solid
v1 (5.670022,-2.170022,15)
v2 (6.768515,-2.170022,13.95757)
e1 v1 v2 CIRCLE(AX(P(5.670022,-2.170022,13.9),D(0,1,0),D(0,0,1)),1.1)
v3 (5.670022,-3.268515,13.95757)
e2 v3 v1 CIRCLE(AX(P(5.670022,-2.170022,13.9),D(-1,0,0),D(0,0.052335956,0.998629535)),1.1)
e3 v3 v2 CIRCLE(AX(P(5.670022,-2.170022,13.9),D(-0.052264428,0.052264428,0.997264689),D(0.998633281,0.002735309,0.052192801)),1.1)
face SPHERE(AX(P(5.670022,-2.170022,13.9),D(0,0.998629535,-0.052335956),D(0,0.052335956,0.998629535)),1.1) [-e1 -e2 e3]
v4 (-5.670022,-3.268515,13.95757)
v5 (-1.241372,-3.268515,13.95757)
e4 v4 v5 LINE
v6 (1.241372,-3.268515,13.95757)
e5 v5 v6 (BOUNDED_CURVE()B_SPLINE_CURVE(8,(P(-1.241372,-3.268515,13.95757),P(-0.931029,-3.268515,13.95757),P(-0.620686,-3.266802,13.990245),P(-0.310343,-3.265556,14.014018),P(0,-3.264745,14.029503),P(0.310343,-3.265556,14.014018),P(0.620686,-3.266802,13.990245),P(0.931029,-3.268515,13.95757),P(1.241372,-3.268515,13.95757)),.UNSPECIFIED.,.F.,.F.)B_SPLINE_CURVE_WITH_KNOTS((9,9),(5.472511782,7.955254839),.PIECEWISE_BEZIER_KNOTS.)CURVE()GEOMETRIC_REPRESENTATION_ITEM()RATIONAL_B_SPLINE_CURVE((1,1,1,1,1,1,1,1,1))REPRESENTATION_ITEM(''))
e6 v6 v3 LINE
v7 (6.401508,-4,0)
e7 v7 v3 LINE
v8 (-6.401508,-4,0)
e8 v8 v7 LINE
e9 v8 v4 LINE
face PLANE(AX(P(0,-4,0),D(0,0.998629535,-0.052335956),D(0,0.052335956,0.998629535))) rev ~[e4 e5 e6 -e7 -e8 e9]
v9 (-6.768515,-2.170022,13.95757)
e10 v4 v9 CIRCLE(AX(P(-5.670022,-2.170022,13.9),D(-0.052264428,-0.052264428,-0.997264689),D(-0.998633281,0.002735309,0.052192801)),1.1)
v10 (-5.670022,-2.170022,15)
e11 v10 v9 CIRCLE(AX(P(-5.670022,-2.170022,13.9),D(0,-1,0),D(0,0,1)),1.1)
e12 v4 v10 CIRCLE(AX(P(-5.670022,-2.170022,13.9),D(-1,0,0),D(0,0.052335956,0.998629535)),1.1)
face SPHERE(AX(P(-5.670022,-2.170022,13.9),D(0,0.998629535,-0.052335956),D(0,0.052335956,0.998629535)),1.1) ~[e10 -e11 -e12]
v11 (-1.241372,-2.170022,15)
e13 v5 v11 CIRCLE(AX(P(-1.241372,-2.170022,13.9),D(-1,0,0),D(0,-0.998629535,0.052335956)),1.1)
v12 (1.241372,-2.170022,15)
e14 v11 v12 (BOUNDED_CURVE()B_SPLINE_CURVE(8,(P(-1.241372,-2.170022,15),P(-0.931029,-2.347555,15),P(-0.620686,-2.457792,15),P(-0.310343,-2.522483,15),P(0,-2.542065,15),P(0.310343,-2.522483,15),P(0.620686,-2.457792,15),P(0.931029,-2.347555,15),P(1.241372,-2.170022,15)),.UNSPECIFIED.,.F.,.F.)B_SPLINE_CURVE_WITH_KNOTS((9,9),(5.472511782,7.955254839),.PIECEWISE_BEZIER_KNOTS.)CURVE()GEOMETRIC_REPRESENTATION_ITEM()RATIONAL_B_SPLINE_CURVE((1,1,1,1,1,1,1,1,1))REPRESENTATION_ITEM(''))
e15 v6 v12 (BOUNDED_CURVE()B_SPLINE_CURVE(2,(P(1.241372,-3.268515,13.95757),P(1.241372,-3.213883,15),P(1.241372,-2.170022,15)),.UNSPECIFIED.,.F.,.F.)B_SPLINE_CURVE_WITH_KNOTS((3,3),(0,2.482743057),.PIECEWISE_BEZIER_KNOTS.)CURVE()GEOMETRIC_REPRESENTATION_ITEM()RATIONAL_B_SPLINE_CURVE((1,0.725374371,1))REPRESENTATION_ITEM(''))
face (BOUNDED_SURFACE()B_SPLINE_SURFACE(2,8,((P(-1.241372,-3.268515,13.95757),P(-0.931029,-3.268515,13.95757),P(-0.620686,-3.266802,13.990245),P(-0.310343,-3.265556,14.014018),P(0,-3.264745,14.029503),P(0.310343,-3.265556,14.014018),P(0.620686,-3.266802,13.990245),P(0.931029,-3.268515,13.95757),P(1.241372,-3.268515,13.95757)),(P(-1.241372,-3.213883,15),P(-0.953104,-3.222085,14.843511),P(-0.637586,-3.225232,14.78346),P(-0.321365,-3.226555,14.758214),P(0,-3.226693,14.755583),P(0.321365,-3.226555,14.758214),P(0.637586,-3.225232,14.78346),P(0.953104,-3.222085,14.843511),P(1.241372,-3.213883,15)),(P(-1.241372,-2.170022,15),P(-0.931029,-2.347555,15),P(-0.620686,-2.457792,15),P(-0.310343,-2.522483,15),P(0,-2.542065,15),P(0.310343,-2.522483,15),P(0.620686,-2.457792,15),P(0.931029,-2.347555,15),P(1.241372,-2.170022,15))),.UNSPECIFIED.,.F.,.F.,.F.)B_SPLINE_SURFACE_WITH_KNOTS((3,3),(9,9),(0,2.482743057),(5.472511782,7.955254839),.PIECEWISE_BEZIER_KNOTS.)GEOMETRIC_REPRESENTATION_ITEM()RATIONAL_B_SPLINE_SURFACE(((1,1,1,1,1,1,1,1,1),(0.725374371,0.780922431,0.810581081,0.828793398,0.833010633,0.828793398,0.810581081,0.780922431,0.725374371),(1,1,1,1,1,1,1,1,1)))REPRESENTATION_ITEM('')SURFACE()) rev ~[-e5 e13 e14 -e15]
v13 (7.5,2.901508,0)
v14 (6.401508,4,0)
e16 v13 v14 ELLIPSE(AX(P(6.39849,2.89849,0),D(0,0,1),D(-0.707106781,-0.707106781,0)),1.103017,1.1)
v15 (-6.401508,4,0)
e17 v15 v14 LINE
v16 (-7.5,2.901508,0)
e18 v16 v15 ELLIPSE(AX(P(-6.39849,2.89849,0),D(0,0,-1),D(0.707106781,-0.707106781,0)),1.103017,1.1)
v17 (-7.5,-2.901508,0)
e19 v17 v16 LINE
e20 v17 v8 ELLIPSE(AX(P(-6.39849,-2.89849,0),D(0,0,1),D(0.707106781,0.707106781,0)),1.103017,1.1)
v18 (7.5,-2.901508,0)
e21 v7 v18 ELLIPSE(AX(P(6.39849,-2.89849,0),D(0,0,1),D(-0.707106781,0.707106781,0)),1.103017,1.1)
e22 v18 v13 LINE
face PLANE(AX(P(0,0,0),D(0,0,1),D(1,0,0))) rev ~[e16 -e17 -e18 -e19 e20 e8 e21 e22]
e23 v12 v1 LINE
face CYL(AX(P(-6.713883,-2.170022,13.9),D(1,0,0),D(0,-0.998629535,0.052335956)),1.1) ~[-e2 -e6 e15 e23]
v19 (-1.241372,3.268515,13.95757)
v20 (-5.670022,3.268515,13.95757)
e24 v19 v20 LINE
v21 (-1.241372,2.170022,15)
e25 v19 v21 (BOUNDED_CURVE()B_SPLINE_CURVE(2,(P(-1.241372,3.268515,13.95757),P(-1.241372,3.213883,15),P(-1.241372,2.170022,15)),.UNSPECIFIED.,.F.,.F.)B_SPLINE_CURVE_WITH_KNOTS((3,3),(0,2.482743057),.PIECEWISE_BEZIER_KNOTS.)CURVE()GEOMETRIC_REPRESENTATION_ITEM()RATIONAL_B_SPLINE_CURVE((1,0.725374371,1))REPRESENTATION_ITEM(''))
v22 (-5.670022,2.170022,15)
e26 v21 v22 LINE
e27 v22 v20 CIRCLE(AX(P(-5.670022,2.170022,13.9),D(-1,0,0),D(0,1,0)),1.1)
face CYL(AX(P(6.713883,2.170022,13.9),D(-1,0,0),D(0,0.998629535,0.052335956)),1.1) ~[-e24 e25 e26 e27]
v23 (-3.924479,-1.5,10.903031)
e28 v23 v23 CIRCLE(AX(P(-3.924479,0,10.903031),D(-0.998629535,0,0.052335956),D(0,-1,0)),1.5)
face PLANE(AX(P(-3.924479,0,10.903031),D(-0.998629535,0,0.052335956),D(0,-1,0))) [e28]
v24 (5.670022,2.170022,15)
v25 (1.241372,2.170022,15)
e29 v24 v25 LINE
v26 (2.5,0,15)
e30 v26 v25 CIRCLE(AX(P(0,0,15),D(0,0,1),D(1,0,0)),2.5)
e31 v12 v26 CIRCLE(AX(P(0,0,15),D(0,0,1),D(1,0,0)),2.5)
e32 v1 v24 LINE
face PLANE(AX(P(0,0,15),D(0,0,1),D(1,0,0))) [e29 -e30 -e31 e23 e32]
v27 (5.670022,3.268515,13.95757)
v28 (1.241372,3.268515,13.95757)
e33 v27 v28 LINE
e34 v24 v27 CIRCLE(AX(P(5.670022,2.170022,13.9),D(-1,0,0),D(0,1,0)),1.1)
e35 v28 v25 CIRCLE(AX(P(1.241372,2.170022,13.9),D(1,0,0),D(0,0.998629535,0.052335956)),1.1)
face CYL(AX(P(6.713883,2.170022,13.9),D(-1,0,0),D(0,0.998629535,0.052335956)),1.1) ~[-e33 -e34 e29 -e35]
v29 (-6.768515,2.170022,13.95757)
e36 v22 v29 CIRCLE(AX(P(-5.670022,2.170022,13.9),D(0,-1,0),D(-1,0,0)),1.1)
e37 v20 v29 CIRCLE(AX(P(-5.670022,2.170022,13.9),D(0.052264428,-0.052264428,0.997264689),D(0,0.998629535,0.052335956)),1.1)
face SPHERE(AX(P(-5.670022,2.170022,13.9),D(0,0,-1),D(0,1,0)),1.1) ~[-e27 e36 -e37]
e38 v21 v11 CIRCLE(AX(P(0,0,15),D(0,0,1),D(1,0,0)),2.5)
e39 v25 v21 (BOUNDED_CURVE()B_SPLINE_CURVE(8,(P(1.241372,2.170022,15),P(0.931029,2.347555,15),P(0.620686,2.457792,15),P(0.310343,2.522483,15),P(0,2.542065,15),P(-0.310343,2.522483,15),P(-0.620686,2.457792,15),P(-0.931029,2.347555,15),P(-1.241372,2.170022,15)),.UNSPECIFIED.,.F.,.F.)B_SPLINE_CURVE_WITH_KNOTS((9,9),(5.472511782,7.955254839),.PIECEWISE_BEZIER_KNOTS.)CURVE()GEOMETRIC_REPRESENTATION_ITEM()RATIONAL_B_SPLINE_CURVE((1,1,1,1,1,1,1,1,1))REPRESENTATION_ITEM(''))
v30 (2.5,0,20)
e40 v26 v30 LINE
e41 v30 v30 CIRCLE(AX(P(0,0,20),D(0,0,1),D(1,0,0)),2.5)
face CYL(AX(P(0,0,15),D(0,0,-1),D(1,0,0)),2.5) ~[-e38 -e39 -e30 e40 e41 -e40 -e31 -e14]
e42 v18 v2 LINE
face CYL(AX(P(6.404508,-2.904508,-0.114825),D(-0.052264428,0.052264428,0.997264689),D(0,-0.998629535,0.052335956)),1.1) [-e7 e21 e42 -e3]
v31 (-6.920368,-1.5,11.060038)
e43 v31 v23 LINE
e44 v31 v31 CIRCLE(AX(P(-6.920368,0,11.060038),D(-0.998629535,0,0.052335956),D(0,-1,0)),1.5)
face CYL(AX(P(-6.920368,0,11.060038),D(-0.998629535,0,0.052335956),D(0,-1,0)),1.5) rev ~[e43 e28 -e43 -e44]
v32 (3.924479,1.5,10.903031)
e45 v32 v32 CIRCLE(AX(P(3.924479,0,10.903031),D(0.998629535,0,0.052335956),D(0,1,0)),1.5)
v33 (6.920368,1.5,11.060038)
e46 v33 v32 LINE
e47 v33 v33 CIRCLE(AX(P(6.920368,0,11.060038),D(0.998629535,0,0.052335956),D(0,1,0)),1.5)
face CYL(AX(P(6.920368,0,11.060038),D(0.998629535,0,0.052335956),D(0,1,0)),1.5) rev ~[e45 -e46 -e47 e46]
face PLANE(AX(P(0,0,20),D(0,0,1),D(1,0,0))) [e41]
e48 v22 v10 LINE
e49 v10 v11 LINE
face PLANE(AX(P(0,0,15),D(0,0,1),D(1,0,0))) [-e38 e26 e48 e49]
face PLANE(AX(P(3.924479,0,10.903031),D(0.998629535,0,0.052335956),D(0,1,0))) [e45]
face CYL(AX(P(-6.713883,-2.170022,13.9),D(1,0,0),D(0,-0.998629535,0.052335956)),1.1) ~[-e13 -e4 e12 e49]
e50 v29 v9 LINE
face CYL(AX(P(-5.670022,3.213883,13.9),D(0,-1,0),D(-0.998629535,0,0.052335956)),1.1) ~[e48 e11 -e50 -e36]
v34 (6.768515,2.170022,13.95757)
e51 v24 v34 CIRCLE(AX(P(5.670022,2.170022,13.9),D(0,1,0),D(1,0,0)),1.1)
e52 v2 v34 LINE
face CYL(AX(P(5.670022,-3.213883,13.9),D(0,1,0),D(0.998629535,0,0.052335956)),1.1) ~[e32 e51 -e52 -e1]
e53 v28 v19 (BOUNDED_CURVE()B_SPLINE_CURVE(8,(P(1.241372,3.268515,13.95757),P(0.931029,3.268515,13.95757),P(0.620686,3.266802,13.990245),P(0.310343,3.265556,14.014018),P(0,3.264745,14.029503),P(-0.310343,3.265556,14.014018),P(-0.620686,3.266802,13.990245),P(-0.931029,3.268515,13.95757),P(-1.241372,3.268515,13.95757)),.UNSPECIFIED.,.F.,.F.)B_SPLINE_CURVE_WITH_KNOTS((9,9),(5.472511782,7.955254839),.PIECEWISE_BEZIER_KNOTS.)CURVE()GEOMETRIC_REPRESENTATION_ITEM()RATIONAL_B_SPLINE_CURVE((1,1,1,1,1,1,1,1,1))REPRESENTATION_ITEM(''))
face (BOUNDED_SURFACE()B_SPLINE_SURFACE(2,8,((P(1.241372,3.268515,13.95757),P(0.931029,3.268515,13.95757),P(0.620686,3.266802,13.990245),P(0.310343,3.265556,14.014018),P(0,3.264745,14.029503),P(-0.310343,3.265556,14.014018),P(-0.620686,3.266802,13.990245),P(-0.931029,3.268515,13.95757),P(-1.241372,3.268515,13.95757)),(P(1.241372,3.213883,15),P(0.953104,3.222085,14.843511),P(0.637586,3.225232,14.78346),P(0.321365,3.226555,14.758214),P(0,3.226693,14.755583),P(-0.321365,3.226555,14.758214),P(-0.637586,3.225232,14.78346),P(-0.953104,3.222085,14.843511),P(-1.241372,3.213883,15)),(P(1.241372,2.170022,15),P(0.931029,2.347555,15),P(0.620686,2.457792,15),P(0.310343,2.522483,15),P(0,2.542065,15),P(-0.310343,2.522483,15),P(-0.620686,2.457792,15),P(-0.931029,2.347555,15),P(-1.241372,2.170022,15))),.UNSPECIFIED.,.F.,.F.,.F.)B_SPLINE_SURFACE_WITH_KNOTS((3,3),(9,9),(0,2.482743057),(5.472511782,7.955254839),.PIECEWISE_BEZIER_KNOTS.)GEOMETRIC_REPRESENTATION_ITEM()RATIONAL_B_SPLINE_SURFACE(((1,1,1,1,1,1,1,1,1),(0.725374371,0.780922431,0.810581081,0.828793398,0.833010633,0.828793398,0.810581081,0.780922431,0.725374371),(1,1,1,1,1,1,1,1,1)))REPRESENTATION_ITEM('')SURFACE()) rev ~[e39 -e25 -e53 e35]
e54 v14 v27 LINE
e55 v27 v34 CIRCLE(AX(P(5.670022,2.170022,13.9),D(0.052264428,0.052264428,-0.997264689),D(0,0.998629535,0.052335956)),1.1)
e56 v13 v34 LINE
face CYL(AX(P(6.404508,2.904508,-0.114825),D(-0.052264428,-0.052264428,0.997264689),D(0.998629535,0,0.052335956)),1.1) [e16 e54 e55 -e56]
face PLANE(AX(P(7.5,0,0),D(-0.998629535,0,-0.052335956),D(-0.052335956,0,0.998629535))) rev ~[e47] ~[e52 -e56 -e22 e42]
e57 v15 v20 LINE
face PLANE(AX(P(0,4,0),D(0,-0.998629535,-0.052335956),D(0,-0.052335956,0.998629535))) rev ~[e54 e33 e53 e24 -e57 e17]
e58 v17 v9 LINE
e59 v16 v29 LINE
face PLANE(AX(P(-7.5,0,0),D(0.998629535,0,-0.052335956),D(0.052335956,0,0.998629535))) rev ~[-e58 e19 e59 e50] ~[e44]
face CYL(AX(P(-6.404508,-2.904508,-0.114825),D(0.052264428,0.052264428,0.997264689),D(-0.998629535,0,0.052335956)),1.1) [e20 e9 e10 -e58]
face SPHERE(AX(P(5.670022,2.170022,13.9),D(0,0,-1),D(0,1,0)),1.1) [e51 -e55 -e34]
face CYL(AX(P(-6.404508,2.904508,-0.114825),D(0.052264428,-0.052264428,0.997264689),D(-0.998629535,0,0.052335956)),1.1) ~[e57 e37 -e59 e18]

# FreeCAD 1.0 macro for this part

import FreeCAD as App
import Part
import Sketcher


def edges_at(feature, points):
    """Names of the edges that pass closest to the given points."""
    edges = feature.Shape.Edges
    near = lambda p: min(range(len(edges)), key=lambda i: edges[i].distToShape(Part.Vertex(*p))[0])
    return sorted({f"Edge{near(p) + 1}" for p in points})

doc = App.newDocument("Part")
body = doc.addObject("PartDesign::Body", "Body")

# Sketch on XY plane
sketch1 = body.newObject("Sketcher::SketchObject", "Sketch")
sketch1.AttachmentSupport = (doc.getObject("XY_Plane"), [""])
sketch1.MapMode = "FlatFace"
sketch1.addGeometry([
    Part.LineSegment(App.Vector(-8, 4, 0), App.Vector(-8, -4, 0)),
    Part.LineSegment(App.Vector(-8, -4, 0), App.Vector(8, -4, 0)),
    Part.LineSegment(App.Vector(8, -4, 0), App.Vector(8, 4, 0)),
    Part.LineSegment(App.Vector(8, 4, 0), App.Vector(-8, 4, 0)),
], False)
sketch1.addConstraint([
    Sketcher.Constraint("Coincident", 0, 2, 1, 1),
    Sketcher.Constraint("Coincident", 1, 2, 2, 1),
    Sketcher.Constraint("Coincident", 2, 2, 3, 1),
    Sketcher.Constraint("Coincident", 3, 2, 0, 1),
    Sketcher.Constraint("Vertical", 0),
    Sketcher.Constraint("Horizontal", 1),
    Sketcher.Constraint("Vertical", 2),
    Sketcher.Constraint("Horizontal", 3),
    Sketcher.Constraint("Symmetric", 0, 2, 2, 2, -1, 1),
    Sketcher.Constraint("DistanceX", 1, 1, 1, 2, 15.0),
    Sketcher.Constraint("DistanceY", 0, 2, 0, 1, 8.0),
])
pad1 = body.newObject("PartDesign::Pad", "Pad")
pad1.Profile = sketch1
pad1.Length = 15
pad1.TaperAngle = -3

# Sketch on XY plane
sketch2 = body.newObject("Sketcher::SketchObject", "Sketch001")
sketch2.AttachmentSupport = (doc.getObject("XY_Plane"), [""])
sketch2.MapMode = "FlatFace"
sketch2.AttachmentOffset = App.Placement(App.Vector(0, 0, 15), App.Rotation())
sketch2.addGeometry(Part.Circle(App.Vector(0, 0, 0), App.Vector(0, 0, 1), 2.5), False)
sketch2.addConstraint([
    Sketcher.Constraint("Coincident", 0, 3, -1, 1),
    Sketcher.Constraint("Diameter", 0, 5.0),
])
pad2 = body.newObject("PartDesign::Pad", "Pad001")
pad2.Profile = sketch2
pad2.Length = 5
doc.recompute()

fillet = body.newObject("PartDesign::Fillet", "Fillet")
fillet.Base = (pad2, edges_at(pad2, [
    (7.107, 3.607, 7.5),
    (-7.107, 3.607, 7.5),
    (0, 3.214, 15),
    (-6.714, 0, 15),
    (6.714, 0, 15),
    (0, -3.214, 15),
    (7.107, -3.607, 7.5),
    (-7.107, -3.607, 7.5),
]))
fillet.Radius = 1.1

# Sketch on an angled plane
sketch3 = body.newObject("Sketcher::SketchObject", "Sketch002")
sketch3.Placement = App.Placement(App.Vector(-7.479457, 0, 0.391982), App.Rotation(App.Vector(0, -1, 0), App.Vector(0.052335956, 0, 0.998629535), App.Vector(-0.998629535, 0, 0.052335956), "ZXY"))
sketch3.addGeometry(Part.Circle(App.Vector(0, 10.7, 0), App.Vector(0, 0, 1), 1.5), False)
sketch3.addConstraint([
    Sketcher.Constraint("PointOnObject", 0, 3, -2),
    Sketcher.Constraint("Diameter", 0, 3.0),
    Sketcher.Constraint("DistanceY", -1, 1, 0, 3, 10.682697),
])
pocket1 = body.newObject("PartDesign::Pocket", "Pocket")
pocket1.Profile = sketch3
pocket1.Length = 3

# Sketch on an angled plane
sketch4 = body.newObject("Sketcher::SketchObject", "Sketch003")
sketch4.Placement = App.Placement(App.Vector(7.479457, 0, 0.391982), App.Rotation(App.Vector(0, 1, 0), App.Vector(-0.052335956, 0, 0.998629535), App.Vector(0.998629535, 0, 0.052335956), "ZXY"))
sketch4.addGeometry(Part.Circle(App.Vector(0, 10.7, 0), App.Vector(0, 0, 1), 1.5), False)
sketch4.addConstraint([
    Sketcher.Constraint("PointOnObject", 0, 3, -2),
    Sketcher.Constraint("Diameter", 0, 3.0),
    Sketcher.Constraint("DistanceY", -1, 1, 0, 3, 10.682697),
])
pocket2 = body.newObject("PartDesign::Pocket", "Pocket001")
pocket2.Profile = sketch4
pocket2.Length = 3

doc.recompute()
